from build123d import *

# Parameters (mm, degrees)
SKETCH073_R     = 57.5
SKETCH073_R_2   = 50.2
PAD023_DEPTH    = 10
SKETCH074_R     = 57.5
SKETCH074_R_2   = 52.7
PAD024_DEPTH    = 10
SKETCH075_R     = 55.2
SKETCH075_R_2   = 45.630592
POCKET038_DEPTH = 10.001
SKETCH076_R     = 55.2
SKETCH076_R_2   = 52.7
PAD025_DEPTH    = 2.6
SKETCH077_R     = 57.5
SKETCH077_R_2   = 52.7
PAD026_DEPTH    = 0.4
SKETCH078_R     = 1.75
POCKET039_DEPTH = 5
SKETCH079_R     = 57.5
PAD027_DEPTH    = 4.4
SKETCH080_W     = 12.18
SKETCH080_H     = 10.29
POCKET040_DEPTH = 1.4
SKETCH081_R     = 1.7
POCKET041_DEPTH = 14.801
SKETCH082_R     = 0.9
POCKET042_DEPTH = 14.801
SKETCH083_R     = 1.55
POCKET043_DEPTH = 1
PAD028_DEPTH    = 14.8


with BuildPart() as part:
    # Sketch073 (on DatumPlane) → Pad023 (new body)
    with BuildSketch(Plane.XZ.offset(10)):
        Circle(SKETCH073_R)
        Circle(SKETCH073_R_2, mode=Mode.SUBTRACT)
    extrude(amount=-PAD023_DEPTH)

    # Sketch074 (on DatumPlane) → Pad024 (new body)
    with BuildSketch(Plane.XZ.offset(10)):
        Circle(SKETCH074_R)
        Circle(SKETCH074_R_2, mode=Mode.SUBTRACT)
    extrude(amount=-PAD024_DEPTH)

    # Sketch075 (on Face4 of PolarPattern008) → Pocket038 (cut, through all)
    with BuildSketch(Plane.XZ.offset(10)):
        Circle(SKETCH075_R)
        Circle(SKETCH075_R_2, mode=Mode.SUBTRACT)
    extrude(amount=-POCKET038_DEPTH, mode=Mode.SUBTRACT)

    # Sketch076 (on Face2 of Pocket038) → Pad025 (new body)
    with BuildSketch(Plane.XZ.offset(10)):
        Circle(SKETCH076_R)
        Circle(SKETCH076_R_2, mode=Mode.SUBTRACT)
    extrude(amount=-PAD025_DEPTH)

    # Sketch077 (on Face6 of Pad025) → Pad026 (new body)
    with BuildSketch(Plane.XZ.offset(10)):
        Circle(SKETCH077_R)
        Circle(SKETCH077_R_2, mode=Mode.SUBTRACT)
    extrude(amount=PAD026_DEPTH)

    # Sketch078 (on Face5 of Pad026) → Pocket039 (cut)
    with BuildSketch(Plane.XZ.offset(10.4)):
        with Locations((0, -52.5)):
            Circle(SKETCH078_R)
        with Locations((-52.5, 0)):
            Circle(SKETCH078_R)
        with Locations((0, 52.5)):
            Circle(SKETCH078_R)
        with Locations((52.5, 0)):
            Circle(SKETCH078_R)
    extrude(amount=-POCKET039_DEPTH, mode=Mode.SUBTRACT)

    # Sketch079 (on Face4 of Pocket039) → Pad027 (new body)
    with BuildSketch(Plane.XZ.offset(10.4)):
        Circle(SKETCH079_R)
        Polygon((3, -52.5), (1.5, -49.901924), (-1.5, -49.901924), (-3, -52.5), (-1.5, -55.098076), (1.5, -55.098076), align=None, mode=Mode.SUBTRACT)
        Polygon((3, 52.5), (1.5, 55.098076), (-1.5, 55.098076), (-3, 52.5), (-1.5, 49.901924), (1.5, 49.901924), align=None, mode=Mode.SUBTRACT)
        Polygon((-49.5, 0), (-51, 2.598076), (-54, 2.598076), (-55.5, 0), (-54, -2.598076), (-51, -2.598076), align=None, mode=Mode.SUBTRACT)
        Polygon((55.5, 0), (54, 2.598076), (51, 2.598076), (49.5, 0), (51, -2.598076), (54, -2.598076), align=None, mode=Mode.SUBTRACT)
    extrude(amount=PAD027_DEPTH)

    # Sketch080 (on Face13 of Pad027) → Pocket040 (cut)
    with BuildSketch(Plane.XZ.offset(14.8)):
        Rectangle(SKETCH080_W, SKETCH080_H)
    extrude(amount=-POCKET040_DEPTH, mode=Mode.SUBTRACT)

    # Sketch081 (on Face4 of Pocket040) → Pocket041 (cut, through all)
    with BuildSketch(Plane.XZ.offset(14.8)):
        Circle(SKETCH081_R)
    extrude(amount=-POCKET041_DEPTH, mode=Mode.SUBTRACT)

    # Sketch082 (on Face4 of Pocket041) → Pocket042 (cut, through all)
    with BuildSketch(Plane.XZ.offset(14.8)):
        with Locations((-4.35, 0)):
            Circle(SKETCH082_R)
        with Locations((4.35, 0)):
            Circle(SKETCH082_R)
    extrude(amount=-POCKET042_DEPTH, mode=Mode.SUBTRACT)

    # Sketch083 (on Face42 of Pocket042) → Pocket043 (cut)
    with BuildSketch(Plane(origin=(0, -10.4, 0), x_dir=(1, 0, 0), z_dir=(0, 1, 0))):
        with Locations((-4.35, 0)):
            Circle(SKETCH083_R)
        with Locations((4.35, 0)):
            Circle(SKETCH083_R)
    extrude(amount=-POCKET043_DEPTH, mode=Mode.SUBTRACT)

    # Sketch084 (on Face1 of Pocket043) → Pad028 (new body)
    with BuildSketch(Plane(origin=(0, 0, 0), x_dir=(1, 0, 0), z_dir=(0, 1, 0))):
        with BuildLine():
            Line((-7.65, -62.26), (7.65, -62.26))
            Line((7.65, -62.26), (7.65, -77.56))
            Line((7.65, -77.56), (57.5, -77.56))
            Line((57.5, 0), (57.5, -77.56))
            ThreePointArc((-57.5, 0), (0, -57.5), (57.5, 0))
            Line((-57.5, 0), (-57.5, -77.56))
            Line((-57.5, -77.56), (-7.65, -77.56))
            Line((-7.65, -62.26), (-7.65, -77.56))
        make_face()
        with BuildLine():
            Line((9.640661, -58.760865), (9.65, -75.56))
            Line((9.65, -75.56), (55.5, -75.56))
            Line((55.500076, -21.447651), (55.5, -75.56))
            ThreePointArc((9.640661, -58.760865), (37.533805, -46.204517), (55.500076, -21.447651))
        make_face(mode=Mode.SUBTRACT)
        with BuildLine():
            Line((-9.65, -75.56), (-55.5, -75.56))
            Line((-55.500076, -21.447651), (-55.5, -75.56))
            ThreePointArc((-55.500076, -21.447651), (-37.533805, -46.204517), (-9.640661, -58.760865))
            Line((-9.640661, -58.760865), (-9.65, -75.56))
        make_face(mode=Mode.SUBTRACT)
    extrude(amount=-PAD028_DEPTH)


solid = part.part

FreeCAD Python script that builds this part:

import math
import FreeCAD as App
import Part
import Sketcher
Q = App.Units.Quantity


def add_polygon(sketch, points):
    """Adds a closed chain of lines whose ends are joined by coincident constraints."""
    first, n = sketch.GeometryCount, len(points)
    for a, b in zip(points, points[1:] + points[:1]):
        sketch.addGeometry(Part.LineSegment(App.Vector(*a, 0), App.Vector(*b, 0)), False)
    for i in range(n):
        sketch.addConstraint(Sketcher.Constraint("Coincident", first + i, 2, first + (i + 1) % n, 1))

doc = App.newDocument("Part")
body = doc.addObject("PartDesign::Body", "Body")

# Sketch on XZ plane
sketch1 = body.newObject("Sketcher::SketchObject", "Sketch")
sketch1.AttachmentSupport = (doc.getObject("XZ_Plane"), [""])
sketch1.MapMode = "FlatFace"
sketch1.AttachmentOffset = App.Placement(App.Vector(0, 0, 10), App.Rotation())
sketch1.addGeometry(Part.Circle(App.Vector(0, 0, 0), App.Vector(0, 0, 1), 57.5), False)
sketch1.addGeometry(Part.Circle(App.Vector(0, 0, 0), App.Vector(0, 0, 1), 50.2), False)
sketch1.addConstraint(Sketcher.Constraint("Coincident", 0, 3, -1, 1))
sketch1.addConstraint(Sketcher.Constraint("Coincident", 1, 3, -1, 1))
sketch1.addConstraint(Sketcher.Constraint("Diameter", 0, Q("115 mm")))
sketch1.addConstraint(Sketcher.Constraint("Diameter", 1, Q("100.4 mm")))
pad1 = body.newObject("PartDesign::Pad", "Pad")
pad1.Profile = sketch1
pad1.Length = 10
pad1.Reversed = True

# Sketch on XZ plane
sketch2 = body.newObject("Sketcher::SketchObject", "Sketch001")
sketch2.AttachmentSupport = (doc.getObject("XZ_Plane"), [""])
sketch2.MapMode = "FlatFace"
sketch2.AttachmentOffset = App.Placement(App.Vector(0, 0, 10), App.Rotation())
sketch2.addGeometry(Part.Circle(App.Vector(0, 0, 0), App.Vector(0, 0, 1), 57.5), False)
sketch2.addGeometry(Part.Circle(App.Vector(0, 0, 0), App.Vector(0, 0, 1), 52.7), False)
sketch2.addConstraint(Sketcher.Constraint("Coincident", 0, 3, -1, 1))
sketch2.addConstraint(Sketcher.Constraint("Coincident", 1, 3, -1, 1))
sketch2.addConstraint(Sketcher.Constraint("Diameter", 0, Q("115 mm")))
sketch2.addConstraint(Sketcher.Constraint("Diameter", 1, Q("105.4 mm")))
pad2 = body.newObject("PartDesign::Pad", "Pad001")
pad2.Profile = sketch2
pad2.Length = 10
pad2.Reversed = True

# Sketch on XZ plane
sketch3 = body.newObject("Sketcher::SketchObject", "Sketch002")
sketch3.AttachmentSupport = (doc.getObject("XZ_Plane"), [""])
sketch3.MapMode = "FlatFace"
sketch3.AttachmentOffset = App.Placement(App.Vector(0, 0, 10), App.Rotation())
sketch3.addGeometry(Part.Circle(App.Vector(0, 0, 0), App.Vector(0, 0, 1), 55.2), False)
sketch3.addGeometry(Part.Circle(App.Vector(0, 0, 0), App.Vector(0, 0, 1), 45.630592), False)
sketch3.addConstraint(Sketcher.Constraint("Coincident", 0, 3, -1, 1))
sketch3.addConstraint(Sketcher.Constraint("Coincident", 1, 3, -1, 1))
sketch3.addConstraint(Sketcher.Constraint("Diameter", 0, Q("110.4 mm")))
sketch3.addConstraint(Sketcher.Constraint("Diameter", 1, Q("91.261184 mm")))
pocket1 = body.newObject("PartDesign::Pocket", "Pocket")
pocket1.Profile = sketch3
pocket1.Type = "ThroughAll"

# Sketch on XZ plane
sketch4 = body.newObject("Sketcher::SketchObject", "Sketch003")
sketch4.AttachmentSupport = (doc.getObject("XZ_Plane"), [""])
sketch4.MapMode = "FlatFace"
sketch4.AttachmentOffset = App.Placement(App.Vector(0, 0, 10), App.Rotation())
sketch4.addGeometry(Part.Circle(App.Vector(0, 0, 0), App.Vector(0, 0, 1), 55.2), False)
sketch4.addGeometry(Part.Circle(App.Vector(0, 0, 0), App.Vector(0, 0, 1), 52.7), False)
sketch4.addConstraint(Sketcher.Constraint("Coincident", 0, 3, -1, 1))
sketch4.addConstraint(Sketcher.Constraint("Coincident", 1, 3, -1, 1))
sketch4.addConstraint(Sketcher.Constraint("Diameter", 0, Q("110.4 mm")))
sketch4.addConstraint(Sketcher.Constraint("Diameter", 1, Q("105.4 mm")))
pad3 = body.newObject("PartDesign::Pad", "Pad002")
pad3.Profile = sketch4
pad3.Length = 2.6
pad3.Reversed = True

# Sketch on XZ plane
sketch5 = body.newObject("Sketcher::SketchObject", "Sketch004")
sketch5.AttachmentSupport = (doc.getObject("XZ_Plane"), [""])
sketch5.MapMode = "FlatFace"
sketch5.AttachmentOffset = App.Placement(App.Vector(0, 0, 10), App.Rotation())
sketch5.addGeometry(Part.Circle(App.Vector(0, 0, 0), App.Vector(0, 0, 1), 57.5), False)
sketch5.addGeometry(Part.Circle(App.Vector(0, 0, 0), App.Vector(0, 0, 1), 52.7), False)
sketch5.addConstraint(Sketcher.Constraint("Coincident", 0, 3, -1, 1))
sketch5.addConstraint(Sketcher.Constraint("Coincident", 1, 3, -1, 1))
sketch5.addConstraint(Sketcher.Constraint("Diameter", 0, Q("115 mm")))
sketch5.addConstraint(Sketcher.Constraint("Diameter", 1, Q("105.4 mm")))
pad4 = body.newObject("PartDesign::Pad", "Pad003")
pad4.Profile = sketch5
pad4.Length = 0.4

# Sketch on XZ plane
sketch6 = body.newObject("Sketcher::SketchObject", "Sketch005")
sketch6.AttachmentSupport = (doc.getObject("XZ_Plane"), [""])
sketch6.MapMode = "FlatFace"
sketch6.AttachmentOffset = App.Placement(App.Vector(0, 0, 10.4), App.Rotation())
sketch6.addGeometry(Part.Circle(App.Vector(0, -52.5, 0), App.Vector(0, 0, 1), 1.75), False)
sketch6.addGeometry(Part.Circle(App.Vector(-52.5, 0, 0), App.Vector(0, 0, 1), 1.75), False)
sketch6.addGeometry(Part.Circle(App.Vector(0, 52.5, 0), App.Vector(0, 0, 1), 1.75), False)
sketch6.addGeometry(Part.Circle(App.Vector(52.5, 0, 0), App.Vector(0, 0, 1), 1.75), False)
sketch6.addConstraint(Sketcher.Constraint("Equal", 0, 1))
sketch6.addConstraint(Sketcher.Constraint("Equal", 1, 2))
sketch6.addConstraint(Sketcher.Constraint("Equal", 2, 3))
sketch6.addConstraint(Sketcher.Constraint("Symmetric", 0, 3, 2, 3, -1, 1))
sketch6.addConstraint(Sketcher.Constraint("Symmetric", 1, 3, 3, 3, -1, 1))
sketch6.addConstraint(Sketcher.Constraint("PointOnObject", 0, 3, -2))
sketch6.addConstraint(Sketcher.Constraint("PointOnObject", 1, 3, -1))
sketch6.addConstraint(Sketcher.Constraint("Diameter", 0, Q("3.5 mm")))
sketch6.addConstraint(Sketcher.Constraint("DistanceY", 0, 3, 2, 3, Q("105 mm")))
sketch6.addConstraint(Sketcher.Constraint("DistanceX", 1, 3, 3, 3, Q("105 mm")))
pocket2 = body.newObject("PartDesign::Pocket", "Pocket001")
pocket2.Profile = sketch6
pocket2.Length = 5

# Sketch on XZ plane
sketch7 = body.newObject("Sketcher::SketchObject", "Sketch006")
sketch7.AttachmentSupport = (doc.getObject("XZ_Plane"), [""])
sketch7.MapMode = "FlatFace"
sketch7.AttachmentOffset = App.Placement(App.Vector(0, 0, 10.4), App.Rotation())
sketch7.addGeometry(Part.Circle(App.Vector(0, 0, 0), App.Vector(0, 0, 1), 57.5), False)  # 0
add_polygon(sketch7, [(1.5, -49.901924), (3, -52.5), (1.5, -55.098076), (-1.5, -55.098076), (-3, -52.5), (-1.5, -49.901924)])  # lines 1-6
add_polygon(sketch7, [(-51, 2.598076), (-49.5, 0), (-51, -2.598076), (-54, -2.598076), (-55.5, 0), (-54, 2.598076)])  # lines 7-12
add_polygon(sketch7, [(54, 2.598076), (55.5, 0), (54, -2.598076), (51, -2.598076), (49.5, 0), (51, 2.598076)])  # lines 13-18
add_polygon(sketch7, [(1.5, 55.098076), (3, 52.5), (1.5, 49.901924), (-1.5, 49.901924), (-3, 52.5), (-1.5, 55.098076)])  # lines 19-24
sketch7.addConstraint(Sketcher.Constraint("Horizontal", 3))
sketch7.addConstraint(Sketcher.Constraint("Horizontal", 6))
sketch7.addConstraint(Sketcher.Constraint("Horizontal", 9))
sketch7.addConstraint(Sketcher.Constraint("Horizontal", 12))
sketch7.addConstraint(Sketcher.Constraint("Horizontal", 15))
sketch7.addConstraint(Sketcher.Constraint("Horizontal", 18))
sketch7.addConstraint(Sketcher.Constraint("Horizontal", 21))
sketch7.addConstraint(Sketcher.Constraint("Horizontal", 24))
sketch7.addConstraint(Sketcher.Constraint("Coincident", 0, 3, -1, 1))
sketch7.addConstraint(Sketcher.Constraint("Symmetric", 10, 2, 13, 2, -1, 1))
sketch7.addConstraint(Sketcher.Constraint("Symmetric", 11, 2, 14, 2, -1, 1))
sketch7.addConstraint(Sketcher.Constraint("Symmetric", 7, 2, 16, 2, -1, 1))
sketch7.addConstraint(Sketcher.Constraint("Symmetric", 8, 2, 17, 2, -1, 1))
sketch7.addConstraint(Sketcher.Constraint("Symmetric", 4, 2, 19, 2, -1, 1))
sketch7.addConstraint(Sketcher.Constraint("Symmetric", 5, 2, 20, 2, -1, 1))
sketch7.addConstraint(Sketcher.Constraint("Symmetric", 1, 2, 22, 2, -1, 1))
sketch7.addConstraint(Sketcher.Constraint("Symmetric", 2, 2, 23, 2, -1, 1))
sketch7.addConstraint(Sketcher.Constraint("Symmetric", 1, 2, 4, 2, -2))
sketch7.addConstraint(Sketcher.Constraint("Symmetric", 9, 2, 14, 2, -2))
sketch7.addConstraint(Sketcher.Constraint("PointOnObject", 7, 2, -1))
sketch7.addConstraint(Sketcher.Constraint("PointOnObject", 10, 2, -1))
sketch7.addConstraint(Sketcher.Constraint("Parallel", 1, 4))
sketch7.addConstraint(Sketcher.Constraint("Parallel", 2, 5))
sketch7.addConstraint(Sketcher.Constraint("Parallel", 4, 7))
sketch7.addConstraint(Sketcher.Constraint("Parallel", 5, 8))
sketch7.addConstraint(Sketcher.Constraint("Parallel", 7, 10))
sketch7.addConstraint(Sketcher.Constraint("Parallel", 8, 11))
sketch7.addConstraint(Sketcher.Constraint("Parallel", 10, 13))
sketch7.addConstraint(Sketcher.Constraint("Parallel", 13, 16))
sketch7.addConstraint(Sketcher.Constraint("Parallel", 16, 19))
sketch7.addConstraint(Sketcher.Constraint("Parallel", 19, 22))
sketch7.addConstraint(Sketcher.Constraint("Vertical", 3, 2, 5, 2))
sketch7.addConstraint(Sketcher.Constraint("Equal", 6, 9))
sketch7.addConstraint(Sketcher.Constraint("Equal", 5, 7))
sketch7.addConstraint(Sketcher.Constraint("Diameter", 0, Q("115 mm")))
sketch7.addConstraint(Sketcher.Constraint("DistanceX", 3, 2, 3, 1, Q("3 mm")))
sketch7.addConstraint(Sketcher.Constraint("Angle", 1, Q("-59.999998 deg")))
sketch7.addConstraint(Sketcher.Constraint("Distance", 1, Q("3 mm")))
sketch7.addConstraint(Sketcher.Constraint("DistanceX", 8, 2, -1, 1, Q("51 mm")))
sketch7.addConstraint(Sketcher.Constraint("DistanceY", 1, 2, -1, 1, Q("52.5 mm")))
pad5 = body.newObject("PartDesign::Pad", "Pad004")
pad5.Profile = sketch7
pad5.Length = 4.4

# Sketch on XZ plane
sketch8 = body.newObject("Sketcher::SketchObject", "Sketch007")
sketch8.AttachmentSupport = (doc.getObject("XZ_Plane"), [""])
sketch8.MapMode = "FlatFace"
sketch8.AttachmentOffset = App.Placement(App.Vector(0, 0, 14.8), App.Rotation())
add_polygon(sketch8, [(-6.09, 5.145), (-6.09, -5.145), (6.09, -5.145), (6.09, 5.145)])  # lines 0-3
sketch8.addConstraint(Sketcher.Constraint("Vertical", 0))
sketch8.addConstraint(Sketcher.Constraint("Horizontal", 1))
sketch8.addConstraint(Sketcher.Constraint("Vertical", 2))
sketch8.addConstraint(Sketcher.Constraint("Horizontal", 3))
sketch8.addConstraint(Sketcher.Constraint("Symmetric", 0, 2, 2, 2, -1, 1))
sketch8.addConstraint(Sketcher.Constraint("DistanceX", 1, 1, 1, 2, Q("12.18 mm")))
sketch8.addConstraint(Sketcher.Constraint("DistanceY", 0, 2, 0, 1, Q("10.29 mm")))
pocket3 = body.newObject("PartDesign::Pocket", "Pocket002")
pocket3.Profile = sketch8
pocket3.Length = 1.4

# Sketch on XZ plane
sketch9 = body.newObject("Sketcher::SketchObject", "Sketch008")
sketch9.AttachmentSupport = (doc.getObject("XZ_Plane"), [""])
sketch9.MapMode = "FlatFace"
sketch9.AttachmentOffset = App.Placement(App.Vector(0, 0, 14.8), App.Rotation())
sketch9.addGeometry(Part.Circle(App.Vector(0, 0, 0), App.Vector(0, 0, 1), 1.7), False)
sketch9.addConstraint(Sketcher.Constraint("Coincident", 0, 3, -1, 1))
sketch9.addConstraint(Sketcher.Constraint("Diameter", 0, Q("3.4 mm")))
pocket4 = body.newObject("PartDesign::Pocket", "Pocket003")
pocket4.Profile = sketch9
pocket4.Type = "ThroughAll"

# Sketch on XZ plane
sketch10 = body.newObject("Sketcher::SketchObject", "Sketch009")
sketch10.AttachmentSupport = (doc.getObject("XZ_Plane"), [""])
sketch10.MapMode = "FlatFace"
sketch10.AttachmentOffset = App.Placement(App.Vector(0, 0, 14.8), App.Rotation())
sketch10.addGeometry(Part.Circle(App.Vector(-4.35, 0, 0), App.Vector(0, 0, 1), 0.9), False)
sketch10.addGeometry(Part.Circle(App.Vector(4.35, 0, 0), App.Vector(0, 0, 1), 0.9), False)
sketch10.addConstraint(Sketcher.Constraint("Equal", 0, 1))
sketch10.addConstraint(Sketcher.Constraint("Symmetric", 0, 3, 1, 3, -1, 1))
sketch10.addConstraint(Sketcher.Constraint("PointOnObject", 0, 3, -1))
sketch10.addConstraint(Sketcher.Constraint("Diameter", 0, Q("1.8 mm")))
sketch10.addConstraint(Sketcher.Constraint("DistanceX", 0, 3, 1, 3, Q("8.7 mm")))
pocket5 = body.newObject("PartDesign::Pocket", "Pocket004")
pocket5.Profile = sketch10
pocket5.Type = "ThroughAll"

# Sketch on XZ plane
sketch11 = body.newObject("Sketcher::SketchObject", "Sketch010")
sketch11.AttachmentSupport = (doc.getObject("XZ_Plane"), [""])
sketch11.MapMode = "FlatFace"
sketch11.AttachmentOffset = App.Placement(App.Vector(0, 0, 10.4), App.Rotation())
sketch11.addGeometry(Part.Circle(App.Vector(-4.35, 0, 0), App.Vector(0, 0, 1), 1.55), False)
sketch11.addGeometry(Part.Circle(App.Vector(4.35, 0, 0), App.Vector(0, 0, 1), 1.55), False)
sketch11.addConstraint(Sketcher.Constraint("Equal", 0, 1))
sketch11.addConstraint(Sketcher.Constraint("Symmetric", 0, 3, 1, 3, -1, 1))
sketch11.addConstraint(Sketcher.Constraint("PointOnObject", 0, 3, -1))
sketch11.addConstraint(Sketcher.Constraint("Diameter", 0, Q("3.1 mm")))
sketch11.addConstraint(Sketcher.Constraint("DistanceX", 0, 3, 1, 3, Q("8.7 mm")))
pocket6 = body.newObject("PartDesign::Pocket", "Pocket005")
pocket6.Profile = sketch11
pocket6.Length = 1
pocket6.Reversed = True

# Sketch on XZ plane
sketch12 = body.newObject("Sketcher::SketchObject", "Sketch011")
sketch12.AttachmentSupport = (doc.getObject("XZ_Plane"), [""])
sketch12.MapMode = "FlatFace"
sketch12.addGeometry(Part.LineSegment(App.Vector(-7.65, 62.26, 0), App.Vector(7.65, 62.26, 0)), False)
sketch12.addGeometry(Part.LineSegment(App.Vector(7.65, 62.26, 0), App.Vector(7.65, 77.56, 0)), False)
sketch12.addGeometry(Part.LineSegment(App.Vector(7.65, 77.56, 0), App.Vector(57.5, 77.56, 0)), False)
sketch12.addGeometry(Part.LineSegment(App.Vector(57.5, 77.56, 0), App.Vector(57.5, 0, 0)), False)
sketch12.addGeometry(Part.ArcOfCircle(Part.Circle(App.Vector(0, 0, 0), App.Vector(0, 0, 1), 57.5), math.radians(0), math.radians(180)), False)
sketch12.addGeometry(Part.LineSegment(App.Vector(-57.5, 0, 0), App.Vector(-57.5, 77.56, 0)), False)
sketch12.addGeometry(Part.LineSegment(App.Vector(-57.5, 77.56, 0), App.Vector(-7.65, 77.56, 0)), False)
sketch12.addGeometry(Part.LineSegment(App.Vector(-7.65, 77.56, 0), App.Vector(-7.65, 62.26, 0)), False)
sketch12.addGeometry(Part.LineSegment(App.Vector(-9.640661, 58.760865, 0), App.Vector(-9.65, 75.56, 0)), False)
sketch12.addGeometry(Part.LineSegment(App.Vector(-9.65, 75.56, 0), App.Vector(-55.5, 75.56, 0)), False)
sketch12.addGeometry(Part.LineSegment(App.Vector(-55.5, 75.56, 0), App.Vector(-55.500076, 21.447651, 0)), False)
sketch12.addGeometry(Part.ArcOfCircle(Part.Circle(App.Vector(0.011222, 0.060196, 0), App.Vector(0, 0, 1), 59.488885), math.radians(99.337334), math.radians(158.929268)), False)
sketch12.addGeometry(Part.LineSegment(App.Vector(9.65, 75.56, 0), App.Vector(9.640661, 58.760865, 0)), False)
sketch12.addGeometry(Part.ArcOfCircle(Part.Circle(App.Vector(-0.011222, 0.060196, 0), App.Vector(0, 0, 1), 59.488885), math.radians(21.070732), math.radians(80.662666)), False)
sketch12.addGeometry(Part.LineSegment(App.Vector(55.500076, 21.447651, 0), App.Vector(55.5, 75.56, 0)), False)
sketch12.addGeometry(Part.LineSegment(App.Vector(55.5, 75.56, 0), App.Vector(9.65, 75.56, 0)), False)
sketch12.addConstraint(Sketcher.Constraint("Coincident", 0, 2, 1, 1))
sketch12.addConstraint(Sketcher.Constraint("Coincident", 1, 2, 2, 1))
sketch12.addConstraint(Sketcher.Constraint("Coincident", 2, 2, 3, 1))
sketch12.addConstraint(Sketcher.Constraint("Tangent", 3, 2, 4, 1))
sketch12.addConstraint(Sketcher.Constraint("Tangent", 4, 2, 5, 1))
sketch12.addConstraint(Sketcher.Constraint("Coincident", 5, 2, 6, 1))
sketch12.addConstraint(Sketcher.Constraint("Coincident", 6, 2, 7, 1))
sketch12.addConstraint(Sketcher.Constraint("Coincident", 7, 2, 0, 1))
sketch12.addConstraint(Sketcher.Constraint("Coincident", 8, 2, 9, 1))
sketch12.addConstraint(Sketcher.Constraint("Coincident", 9, 2, 10, 1))
sketch12.addConstraint(Sketcher.Constraint("Coincident", 10, 2, 11, 2))
sketch12.addConstraint(Sketcher.Constraint("Coincident", 11, 1, 8, 1))
sketch12.addConstraint(Sketcher.Constraint("Coincident", 12, 2, 13, 2))
sketch12.addConstraint(Sketcher.Constraint("Coincident", 13, 1, 14, 1))
sketch12.addConstraint(Sketcher.Constraint("Coincident", 14, 2, 15, 1))
sketch12.addConstraint(Sketcher.Constraint("Coincident", 15, 2, 12, 1))
sketch12.addConstraint(Sketcher.Constraint("Horizontal", 0))
sketch12.addConstraint(Sketcher.Constraint("Vertical", 1))
sketch12.addConstraint(Sketcher.Constraint("Horizontal", 2))
sketch12.addConstraint(Sketcher.Constraint("Vertical", 3))
sketch12.addConstraint(Sketcher.Constraint("Vertical", 5))
sketch12.addConstraint(Sketcher.Constraint("Horizontal", 6))
sketch12.addConstraint(Sketcher.Constraint("Vertical", 7))
sketch12.addConstraint(Sketcher.Constraint("Horizontal", 9))
sketch12.addConstraint(Sketcher.Constraint("Horizontal", 15))
sketch12.addConstraint(Sketcher.Constraint("Coincident", 4, 3, -1, 1))
sketch12.addConstraint(Sketcher.Constraint("Equal", 11, 13))
sketch12.addConstraint(Sketcher.Constraint("Symmetric", 11, 3, 13, 3, -2))
sketch12.addConstraint(Sketcher.Constraint("Symmetric", 1, 2, 6, 2, -2))
sketch12.addConstraint(Sketcher.Constraint("Symmetric", 9, 2, 14, 2, -2))
sketch12.addConstraint(Sketcher.Constraint("Horizontal", 11, 1, 12, 2))
sketch12.addConstraint(Sketcher.Constraint("Horizontal", 10, 2, 13, 1))
sketch12.addConstraint(Sketcher.Constraint("Equal", 9, 15))
sketch12.addConstraint(Sketcher.Constraint("Equal", 0, 1))
sketch12.addConstraint(Sketcher.Constraint("Radius", 4, Q("57.5 mm")))
sketch12.addConstraint(Sketcher.Constraint("DistanceX", 0, 1, 0, 2, Q("15.3 mm")))
sketch12.addConstraint(Sketcher.Constraint("DistanceX", 8, 2, 6, 2, Q("2 mm")))
sketch12.addConstraint(Sketcher.Constraint("DistanceY", 8, 2, 6, 2, Q("2 mm")))
sketch12.addConstraint(Sketcher.Constraint("DistanceX", 5, 2, 9, 2, Q("2 mm")))
sketch12.addConstraint(Sketcher.Constraint("DistanceY", 3, 2, 3, 1, Q("77.56 mm")))
sketch12.addConstraint(Sketcher.Constraint("Radius", 11, Q("59.488885 mm")))
sketch12.addConstraint(Sketcher.Constraint("Distance", 10, Q("54.112349 mm")))
sketch12.addConstraint(Sketcher.Constraint("DistanceX", -1, 1, 11, 3, Q("0.011222 mm")))
sketch12.addConstraint(Sketcher.Constraint("DistanceX", 11, 1, -1, 1, Q("9.640661 mm")))
sketch12.addConstraint(Sketcher.Constraint("Distance", 8, Q("16.799138 mm")))
pad6 = body.newObject("PartDesign::Pad", "Pad005")
pad6.Profile = sketch12
pad6.Length = 14.8

doc.recompute()
